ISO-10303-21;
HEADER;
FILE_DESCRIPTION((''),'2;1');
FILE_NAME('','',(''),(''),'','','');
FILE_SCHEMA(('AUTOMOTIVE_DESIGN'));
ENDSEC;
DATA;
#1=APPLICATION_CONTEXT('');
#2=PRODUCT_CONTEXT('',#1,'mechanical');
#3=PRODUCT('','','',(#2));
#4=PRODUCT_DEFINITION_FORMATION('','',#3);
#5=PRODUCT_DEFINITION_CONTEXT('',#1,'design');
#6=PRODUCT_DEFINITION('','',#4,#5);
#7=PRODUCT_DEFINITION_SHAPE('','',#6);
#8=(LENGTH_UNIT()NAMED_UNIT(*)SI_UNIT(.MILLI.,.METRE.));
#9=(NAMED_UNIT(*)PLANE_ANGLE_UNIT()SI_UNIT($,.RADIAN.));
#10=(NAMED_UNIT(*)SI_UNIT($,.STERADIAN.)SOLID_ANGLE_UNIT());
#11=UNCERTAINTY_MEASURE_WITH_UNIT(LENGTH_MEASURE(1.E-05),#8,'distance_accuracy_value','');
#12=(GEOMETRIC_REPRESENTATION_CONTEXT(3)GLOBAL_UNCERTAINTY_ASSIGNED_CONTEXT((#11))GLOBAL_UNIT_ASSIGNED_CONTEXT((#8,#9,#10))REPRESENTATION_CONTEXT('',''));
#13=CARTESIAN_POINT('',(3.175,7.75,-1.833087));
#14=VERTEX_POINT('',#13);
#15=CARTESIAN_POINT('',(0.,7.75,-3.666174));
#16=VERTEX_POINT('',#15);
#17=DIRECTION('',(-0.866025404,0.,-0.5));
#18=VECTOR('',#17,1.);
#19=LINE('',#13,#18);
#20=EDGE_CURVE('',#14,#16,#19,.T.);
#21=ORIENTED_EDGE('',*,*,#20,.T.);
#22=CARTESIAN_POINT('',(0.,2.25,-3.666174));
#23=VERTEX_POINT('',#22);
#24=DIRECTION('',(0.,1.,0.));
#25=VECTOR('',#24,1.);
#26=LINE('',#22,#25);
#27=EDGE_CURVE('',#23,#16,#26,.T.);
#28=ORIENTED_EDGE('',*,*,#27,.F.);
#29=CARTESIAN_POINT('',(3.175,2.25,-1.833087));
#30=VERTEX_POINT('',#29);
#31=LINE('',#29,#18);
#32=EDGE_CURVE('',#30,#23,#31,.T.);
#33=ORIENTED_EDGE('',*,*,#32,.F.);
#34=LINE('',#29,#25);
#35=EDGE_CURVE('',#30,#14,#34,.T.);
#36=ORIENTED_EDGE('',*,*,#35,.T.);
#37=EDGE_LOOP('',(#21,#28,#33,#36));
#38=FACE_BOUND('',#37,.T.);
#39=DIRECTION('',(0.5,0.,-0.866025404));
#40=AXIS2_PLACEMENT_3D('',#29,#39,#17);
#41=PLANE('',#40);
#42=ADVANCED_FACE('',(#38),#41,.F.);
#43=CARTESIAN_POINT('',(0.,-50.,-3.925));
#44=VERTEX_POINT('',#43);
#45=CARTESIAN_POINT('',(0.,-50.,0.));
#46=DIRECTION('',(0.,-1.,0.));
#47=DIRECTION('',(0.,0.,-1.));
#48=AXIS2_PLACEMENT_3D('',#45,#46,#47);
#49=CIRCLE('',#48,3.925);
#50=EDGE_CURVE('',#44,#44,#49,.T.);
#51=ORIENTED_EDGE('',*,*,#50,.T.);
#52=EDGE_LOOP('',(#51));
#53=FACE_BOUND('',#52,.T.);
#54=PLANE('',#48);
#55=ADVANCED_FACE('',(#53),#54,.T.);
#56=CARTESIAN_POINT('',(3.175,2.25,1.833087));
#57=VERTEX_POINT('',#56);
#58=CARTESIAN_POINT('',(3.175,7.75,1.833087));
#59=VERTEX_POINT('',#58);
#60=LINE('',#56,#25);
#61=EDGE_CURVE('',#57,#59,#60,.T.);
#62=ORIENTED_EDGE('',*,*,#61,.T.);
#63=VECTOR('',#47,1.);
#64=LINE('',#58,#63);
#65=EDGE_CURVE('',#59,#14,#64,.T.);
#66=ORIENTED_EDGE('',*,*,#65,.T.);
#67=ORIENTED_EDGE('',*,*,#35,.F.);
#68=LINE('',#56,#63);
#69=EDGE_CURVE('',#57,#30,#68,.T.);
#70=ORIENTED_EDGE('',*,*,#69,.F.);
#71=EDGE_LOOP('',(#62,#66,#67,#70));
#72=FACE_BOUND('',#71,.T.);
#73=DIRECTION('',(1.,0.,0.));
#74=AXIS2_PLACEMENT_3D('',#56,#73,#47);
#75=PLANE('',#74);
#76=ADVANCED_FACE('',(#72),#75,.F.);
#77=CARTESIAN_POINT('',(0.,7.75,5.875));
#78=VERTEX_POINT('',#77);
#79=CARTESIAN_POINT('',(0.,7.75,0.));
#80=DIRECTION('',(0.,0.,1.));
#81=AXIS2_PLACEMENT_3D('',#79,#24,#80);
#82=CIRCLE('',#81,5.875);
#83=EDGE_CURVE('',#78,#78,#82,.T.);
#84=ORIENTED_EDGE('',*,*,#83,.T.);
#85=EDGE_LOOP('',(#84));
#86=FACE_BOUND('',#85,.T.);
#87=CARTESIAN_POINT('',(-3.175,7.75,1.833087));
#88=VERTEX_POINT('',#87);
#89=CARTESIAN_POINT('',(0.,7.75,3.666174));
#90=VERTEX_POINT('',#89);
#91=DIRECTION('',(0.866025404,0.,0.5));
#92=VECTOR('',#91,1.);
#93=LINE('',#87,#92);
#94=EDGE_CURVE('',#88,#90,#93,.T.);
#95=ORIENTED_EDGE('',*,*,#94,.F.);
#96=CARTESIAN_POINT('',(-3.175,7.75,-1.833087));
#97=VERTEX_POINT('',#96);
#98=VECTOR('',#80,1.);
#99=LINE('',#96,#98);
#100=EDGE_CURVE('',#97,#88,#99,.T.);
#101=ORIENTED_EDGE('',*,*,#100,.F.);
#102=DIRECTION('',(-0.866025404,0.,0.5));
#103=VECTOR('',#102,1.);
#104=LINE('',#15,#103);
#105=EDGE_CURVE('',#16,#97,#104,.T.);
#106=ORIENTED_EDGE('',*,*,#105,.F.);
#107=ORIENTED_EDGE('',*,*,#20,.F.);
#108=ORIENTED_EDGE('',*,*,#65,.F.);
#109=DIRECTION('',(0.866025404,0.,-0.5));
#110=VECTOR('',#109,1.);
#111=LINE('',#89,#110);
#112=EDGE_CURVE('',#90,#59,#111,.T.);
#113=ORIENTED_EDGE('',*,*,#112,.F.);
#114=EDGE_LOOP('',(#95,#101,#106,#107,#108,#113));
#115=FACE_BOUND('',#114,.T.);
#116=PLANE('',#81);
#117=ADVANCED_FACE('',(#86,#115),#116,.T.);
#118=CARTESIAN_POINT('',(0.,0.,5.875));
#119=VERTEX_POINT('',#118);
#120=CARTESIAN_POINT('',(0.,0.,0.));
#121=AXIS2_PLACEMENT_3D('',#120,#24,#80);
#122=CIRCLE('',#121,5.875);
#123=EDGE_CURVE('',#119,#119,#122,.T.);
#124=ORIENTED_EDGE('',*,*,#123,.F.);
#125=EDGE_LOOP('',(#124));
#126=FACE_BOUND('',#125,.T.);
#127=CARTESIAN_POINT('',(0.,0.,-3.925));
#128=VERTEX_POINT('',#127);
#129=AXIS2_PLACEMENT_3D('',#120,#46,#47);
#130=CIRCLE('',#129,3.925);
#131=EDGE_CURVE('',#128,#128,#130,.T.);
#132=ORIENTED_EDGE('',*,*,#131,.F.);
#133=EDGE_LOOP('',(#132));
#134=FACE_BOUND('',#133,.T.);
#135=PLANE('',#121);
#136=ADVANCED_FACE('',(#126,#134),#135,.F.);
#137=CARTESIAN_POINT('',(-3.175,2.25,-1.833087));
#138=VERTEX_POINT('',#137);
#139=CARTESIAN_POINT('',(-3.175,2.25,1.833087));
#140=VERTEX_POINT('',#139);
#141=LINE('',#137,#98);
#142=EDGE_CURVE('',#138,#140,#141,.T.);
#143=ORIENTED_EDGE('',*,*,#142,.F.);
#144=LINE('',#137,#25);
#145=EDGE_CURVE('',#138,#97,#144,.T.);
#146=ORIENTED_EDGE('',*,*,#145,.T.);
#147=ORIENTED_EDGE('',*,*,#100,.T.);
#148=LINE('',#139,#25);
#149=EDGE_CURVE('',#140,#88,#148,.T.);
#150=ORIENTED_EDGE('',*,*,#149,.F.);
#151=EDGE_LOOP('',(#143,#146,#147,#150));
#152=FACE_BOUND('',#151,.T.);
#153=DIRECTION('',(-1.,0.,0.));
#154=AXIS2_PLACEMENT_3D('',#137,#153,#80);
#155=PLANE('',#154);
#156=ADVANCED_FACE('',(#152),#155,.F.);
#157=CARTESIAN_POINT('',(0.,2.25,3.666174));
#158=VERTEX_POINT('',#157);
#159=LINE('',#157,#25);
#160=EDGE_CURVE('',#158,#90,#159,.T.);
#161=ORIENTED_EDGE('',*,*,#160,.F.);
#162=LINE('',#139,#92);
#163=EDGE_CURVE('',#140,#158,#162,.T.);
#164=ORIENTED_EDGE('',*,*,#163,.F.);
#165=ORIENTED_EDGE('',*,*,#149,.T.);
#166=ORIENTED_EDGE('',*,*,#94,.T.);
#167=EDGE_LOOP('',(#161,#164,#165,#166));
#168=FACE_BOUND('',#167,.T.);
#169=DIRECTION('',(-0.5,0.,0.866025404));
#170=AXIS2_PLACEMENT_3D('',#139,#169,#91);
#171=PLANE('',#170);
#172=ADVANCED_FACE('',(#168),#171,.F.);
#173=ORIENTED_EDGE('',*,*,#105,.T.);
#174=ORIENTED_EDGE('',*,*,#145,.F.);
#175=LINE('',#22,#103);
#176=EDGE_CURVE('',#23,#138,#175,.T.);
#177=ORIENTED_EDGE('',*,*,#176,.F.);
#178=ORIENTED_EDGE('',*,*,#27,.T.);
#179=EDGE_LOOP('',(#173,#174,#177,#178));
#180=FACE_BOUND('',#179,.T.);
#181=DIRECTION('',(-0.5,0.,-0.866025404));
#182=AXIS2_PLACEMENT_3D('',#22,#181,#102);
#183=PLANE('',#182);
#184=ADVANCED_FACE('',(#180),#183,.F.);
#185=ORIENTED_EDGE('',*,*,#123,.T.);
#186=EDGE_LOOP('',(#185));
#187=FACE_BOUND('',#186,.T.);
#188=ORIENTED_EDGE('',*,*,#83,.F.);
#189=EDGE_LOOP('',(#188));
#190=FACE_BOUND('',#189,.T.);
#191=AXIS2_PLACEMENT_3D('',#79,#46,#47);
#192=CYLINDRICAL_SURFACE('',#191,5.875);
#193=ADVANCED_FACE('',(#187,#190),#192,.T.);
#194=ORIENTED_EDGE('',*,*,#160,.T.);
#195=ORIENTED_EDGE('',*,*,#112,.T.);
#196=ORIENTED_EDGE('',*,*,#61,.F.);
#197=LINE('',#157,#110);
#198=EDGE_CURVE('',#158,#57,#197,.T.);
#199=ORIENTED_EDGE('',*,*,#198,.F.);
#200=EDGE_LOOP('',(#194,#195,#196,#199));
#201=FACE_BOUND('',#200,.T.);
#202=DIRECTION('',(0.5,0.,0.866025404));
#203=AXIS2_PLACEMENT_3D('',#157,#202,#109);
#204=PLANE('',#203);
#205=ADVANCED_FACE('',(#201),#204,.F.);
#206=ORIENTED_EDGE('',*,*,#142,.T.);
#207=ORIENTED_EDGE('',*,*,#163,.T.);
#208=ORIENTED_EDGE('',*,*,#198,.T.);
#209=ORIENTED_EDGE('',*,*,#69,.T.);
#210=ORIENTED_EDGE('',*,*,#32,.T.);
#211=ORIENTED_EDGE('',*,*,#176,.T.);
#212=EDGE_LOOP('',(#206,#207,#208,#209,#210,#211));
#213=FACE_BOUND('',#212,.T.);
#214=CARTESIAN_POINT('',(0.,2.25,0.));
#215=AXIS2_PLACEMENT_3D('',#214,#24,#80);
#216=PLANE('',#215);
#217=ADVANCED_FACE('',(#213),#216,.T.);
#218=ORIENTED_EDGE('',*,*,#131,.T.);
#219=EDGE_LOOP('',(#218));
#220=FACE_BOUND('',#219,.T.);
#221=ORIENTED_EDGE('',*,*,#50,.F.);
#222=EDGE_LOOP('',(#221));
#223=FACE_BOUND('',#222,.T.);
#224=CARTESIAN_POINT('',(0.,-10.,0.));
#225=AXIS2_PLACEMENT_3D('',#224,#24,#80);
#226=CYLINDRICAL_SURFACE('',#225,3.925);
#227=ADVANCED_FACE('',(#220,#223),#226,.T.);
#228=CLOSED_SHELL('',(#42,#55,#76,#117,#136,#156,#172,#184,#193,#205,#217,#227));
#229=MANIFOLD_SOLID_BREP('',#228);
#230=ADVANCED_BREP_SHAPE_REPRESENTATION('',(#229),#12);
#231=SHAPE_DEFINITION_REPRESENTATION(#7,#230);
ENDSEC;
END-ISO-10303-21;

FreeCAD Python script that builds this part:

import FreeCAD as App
import Part
import Sketcher
from FreeCAD import Vector
Q = App.Units.Quantity


def add_polygon(sketch, points):
    """Adds a closed chain of lines whose ends are joined by coincident constraints."""
    first, n = sketch.GeometryCount, len(points)
    for a, b in zip(points, points[1:] + points[:1]):
        sketch.addGeometry(Part.LineSegment(App.Vector(*a, 0), App.Vector(*b, 0)), False)
    for i in range(n):
        sketch.addConstraint(Sketcher.Constraint("Coincident", first + i, 2, first + (i + 1) % n, 1))

doc = App.newDocument("Part")
body = doc.addObject("PartDesign::Body", "Body")

sketch1 = doc.addObject("Sketcher::SketchObject", "Sketch")
body.addObject(sketch1)
sketch1.AttachmentSupport = (doc.XZ_Plane, [""])
sketch1.MapMode = "FlatFace"
sketch1.addGeometry(Part.Circle(Vector(0, 0, 0), Vector(0, 0, 1), 6), False)
sketch1.addConstraint([
    Sketcher.Constraint("Coincident", 0, 3, -1, 1),
    Sketcher.Constraint("Diameter", 0, 11.75),
])
pad1 = doc.addObject("PartDesign::Pad", "Pad")
body.addObject(pad1)
pad1.Profile = sketch1
pad1.Length = 7.75
pad1.Reversed = True

sketch2 = doc.addObject("Sketcher::SketchObject", "Sketch001")
body.addObject(sketch2)
sketch2.AttachmentSupport = (doc.XZ_Plane, [""])
sketch2.MapMode = "FlatFace"
sketch2.AttachmentOffset = App.Placement(Vector(0, 0, -7.75), App.Rotation())
add_polygon(sketch2, [(0, -3.7), (-3.2, -1.8), (-3.2, 1.8), (0, 3.7), (3.2, 1.8), (3.2, -1.8)])
sketch2.addConstraint([
    Sketcher.Constraint("Vertical", 1),
    Sketcher.Constraint("Vertical", 4),
    Sketcher.Constraint("Symmetric", 0, 2, 3, 2, -1, 1),
    Sketcher.Constraint("Symmetric", 2, 2, 5, 2, -1, 1),
    Sketcher.Constraint("PointOnObject", 2, 2, -2),
    Sketcher.Constraint("Parallel", 2, 5),
    Sketcher.Constraint("Horizontal", 1, 2, 3, 2),
    Sketcher.Constraint("Angle", 0, Q("150 deg")),
    Sketcher.Constraint("DistanceX", 1, 2, 3, 2, 6.35),
    Sketcher.Constraint("DistanceY", 1, 1, 1, 2, 3.666174),
])
pocket1 = doc.addObject("PartDesign::Pocket", "Pocket")
body.addObject(pocket1)
pocket1.Profile = sketch2
pocket1.Length = 5.5
pocket1.Reversed = True

sketch3 = doc.addObject("Sketcher::SketchObject", "Sketch002")
body.addObject(sketch3)
sketch3.AttachmentSupport = (doc.XZ_Plane, [""])
sketch3.MapMode = "FlatFace"
sketch3.addGeometry(Part.Circle(Vector(0, 0, 0), Vector(0, 0, 1), 3.9), False)
sketch3.addConstraint([
    Sketcher.Constraint("Coincident", 0, 3, -1, 1),
    Sketcher.Constraint("Diameter", 0, 7.85),
])
pad2 = doc.addObject("PartDesign::Pad", "Pad001")
body.addObject(pad2)
pad2.Profile = sketch3
pad2.Length = 10

sketch4 = doc.addObject("Sketcher::SketchObject", "Sketch003")
body.addObject(sketch4)
sketch4.AttachmentSupport = (doc.XZ_Plane, [""])
sketch4.MapMode = "FlatFace"
sketch4.AttachmentOffset = App.Placement(Vector(0, 0, 10), App.Rotation())
sketch4.addGeometry(Part.Circle(Vector(0, 0, 0), Vector(0, 0, 1), 3.9), False)
sketch4.addConstraint([
    Sketcher.Constraint("Coincident", 0, 3, -1, 1),
    Sketcher.Constraint("Diameter", 0, 7.85),
])
pad3 = doc.addObject("PartDesign::Pad", "Pad002")
body.addObject(pad3)
pad3.Profile = sketch4
pad3.Length = 40

doc.recompute()
